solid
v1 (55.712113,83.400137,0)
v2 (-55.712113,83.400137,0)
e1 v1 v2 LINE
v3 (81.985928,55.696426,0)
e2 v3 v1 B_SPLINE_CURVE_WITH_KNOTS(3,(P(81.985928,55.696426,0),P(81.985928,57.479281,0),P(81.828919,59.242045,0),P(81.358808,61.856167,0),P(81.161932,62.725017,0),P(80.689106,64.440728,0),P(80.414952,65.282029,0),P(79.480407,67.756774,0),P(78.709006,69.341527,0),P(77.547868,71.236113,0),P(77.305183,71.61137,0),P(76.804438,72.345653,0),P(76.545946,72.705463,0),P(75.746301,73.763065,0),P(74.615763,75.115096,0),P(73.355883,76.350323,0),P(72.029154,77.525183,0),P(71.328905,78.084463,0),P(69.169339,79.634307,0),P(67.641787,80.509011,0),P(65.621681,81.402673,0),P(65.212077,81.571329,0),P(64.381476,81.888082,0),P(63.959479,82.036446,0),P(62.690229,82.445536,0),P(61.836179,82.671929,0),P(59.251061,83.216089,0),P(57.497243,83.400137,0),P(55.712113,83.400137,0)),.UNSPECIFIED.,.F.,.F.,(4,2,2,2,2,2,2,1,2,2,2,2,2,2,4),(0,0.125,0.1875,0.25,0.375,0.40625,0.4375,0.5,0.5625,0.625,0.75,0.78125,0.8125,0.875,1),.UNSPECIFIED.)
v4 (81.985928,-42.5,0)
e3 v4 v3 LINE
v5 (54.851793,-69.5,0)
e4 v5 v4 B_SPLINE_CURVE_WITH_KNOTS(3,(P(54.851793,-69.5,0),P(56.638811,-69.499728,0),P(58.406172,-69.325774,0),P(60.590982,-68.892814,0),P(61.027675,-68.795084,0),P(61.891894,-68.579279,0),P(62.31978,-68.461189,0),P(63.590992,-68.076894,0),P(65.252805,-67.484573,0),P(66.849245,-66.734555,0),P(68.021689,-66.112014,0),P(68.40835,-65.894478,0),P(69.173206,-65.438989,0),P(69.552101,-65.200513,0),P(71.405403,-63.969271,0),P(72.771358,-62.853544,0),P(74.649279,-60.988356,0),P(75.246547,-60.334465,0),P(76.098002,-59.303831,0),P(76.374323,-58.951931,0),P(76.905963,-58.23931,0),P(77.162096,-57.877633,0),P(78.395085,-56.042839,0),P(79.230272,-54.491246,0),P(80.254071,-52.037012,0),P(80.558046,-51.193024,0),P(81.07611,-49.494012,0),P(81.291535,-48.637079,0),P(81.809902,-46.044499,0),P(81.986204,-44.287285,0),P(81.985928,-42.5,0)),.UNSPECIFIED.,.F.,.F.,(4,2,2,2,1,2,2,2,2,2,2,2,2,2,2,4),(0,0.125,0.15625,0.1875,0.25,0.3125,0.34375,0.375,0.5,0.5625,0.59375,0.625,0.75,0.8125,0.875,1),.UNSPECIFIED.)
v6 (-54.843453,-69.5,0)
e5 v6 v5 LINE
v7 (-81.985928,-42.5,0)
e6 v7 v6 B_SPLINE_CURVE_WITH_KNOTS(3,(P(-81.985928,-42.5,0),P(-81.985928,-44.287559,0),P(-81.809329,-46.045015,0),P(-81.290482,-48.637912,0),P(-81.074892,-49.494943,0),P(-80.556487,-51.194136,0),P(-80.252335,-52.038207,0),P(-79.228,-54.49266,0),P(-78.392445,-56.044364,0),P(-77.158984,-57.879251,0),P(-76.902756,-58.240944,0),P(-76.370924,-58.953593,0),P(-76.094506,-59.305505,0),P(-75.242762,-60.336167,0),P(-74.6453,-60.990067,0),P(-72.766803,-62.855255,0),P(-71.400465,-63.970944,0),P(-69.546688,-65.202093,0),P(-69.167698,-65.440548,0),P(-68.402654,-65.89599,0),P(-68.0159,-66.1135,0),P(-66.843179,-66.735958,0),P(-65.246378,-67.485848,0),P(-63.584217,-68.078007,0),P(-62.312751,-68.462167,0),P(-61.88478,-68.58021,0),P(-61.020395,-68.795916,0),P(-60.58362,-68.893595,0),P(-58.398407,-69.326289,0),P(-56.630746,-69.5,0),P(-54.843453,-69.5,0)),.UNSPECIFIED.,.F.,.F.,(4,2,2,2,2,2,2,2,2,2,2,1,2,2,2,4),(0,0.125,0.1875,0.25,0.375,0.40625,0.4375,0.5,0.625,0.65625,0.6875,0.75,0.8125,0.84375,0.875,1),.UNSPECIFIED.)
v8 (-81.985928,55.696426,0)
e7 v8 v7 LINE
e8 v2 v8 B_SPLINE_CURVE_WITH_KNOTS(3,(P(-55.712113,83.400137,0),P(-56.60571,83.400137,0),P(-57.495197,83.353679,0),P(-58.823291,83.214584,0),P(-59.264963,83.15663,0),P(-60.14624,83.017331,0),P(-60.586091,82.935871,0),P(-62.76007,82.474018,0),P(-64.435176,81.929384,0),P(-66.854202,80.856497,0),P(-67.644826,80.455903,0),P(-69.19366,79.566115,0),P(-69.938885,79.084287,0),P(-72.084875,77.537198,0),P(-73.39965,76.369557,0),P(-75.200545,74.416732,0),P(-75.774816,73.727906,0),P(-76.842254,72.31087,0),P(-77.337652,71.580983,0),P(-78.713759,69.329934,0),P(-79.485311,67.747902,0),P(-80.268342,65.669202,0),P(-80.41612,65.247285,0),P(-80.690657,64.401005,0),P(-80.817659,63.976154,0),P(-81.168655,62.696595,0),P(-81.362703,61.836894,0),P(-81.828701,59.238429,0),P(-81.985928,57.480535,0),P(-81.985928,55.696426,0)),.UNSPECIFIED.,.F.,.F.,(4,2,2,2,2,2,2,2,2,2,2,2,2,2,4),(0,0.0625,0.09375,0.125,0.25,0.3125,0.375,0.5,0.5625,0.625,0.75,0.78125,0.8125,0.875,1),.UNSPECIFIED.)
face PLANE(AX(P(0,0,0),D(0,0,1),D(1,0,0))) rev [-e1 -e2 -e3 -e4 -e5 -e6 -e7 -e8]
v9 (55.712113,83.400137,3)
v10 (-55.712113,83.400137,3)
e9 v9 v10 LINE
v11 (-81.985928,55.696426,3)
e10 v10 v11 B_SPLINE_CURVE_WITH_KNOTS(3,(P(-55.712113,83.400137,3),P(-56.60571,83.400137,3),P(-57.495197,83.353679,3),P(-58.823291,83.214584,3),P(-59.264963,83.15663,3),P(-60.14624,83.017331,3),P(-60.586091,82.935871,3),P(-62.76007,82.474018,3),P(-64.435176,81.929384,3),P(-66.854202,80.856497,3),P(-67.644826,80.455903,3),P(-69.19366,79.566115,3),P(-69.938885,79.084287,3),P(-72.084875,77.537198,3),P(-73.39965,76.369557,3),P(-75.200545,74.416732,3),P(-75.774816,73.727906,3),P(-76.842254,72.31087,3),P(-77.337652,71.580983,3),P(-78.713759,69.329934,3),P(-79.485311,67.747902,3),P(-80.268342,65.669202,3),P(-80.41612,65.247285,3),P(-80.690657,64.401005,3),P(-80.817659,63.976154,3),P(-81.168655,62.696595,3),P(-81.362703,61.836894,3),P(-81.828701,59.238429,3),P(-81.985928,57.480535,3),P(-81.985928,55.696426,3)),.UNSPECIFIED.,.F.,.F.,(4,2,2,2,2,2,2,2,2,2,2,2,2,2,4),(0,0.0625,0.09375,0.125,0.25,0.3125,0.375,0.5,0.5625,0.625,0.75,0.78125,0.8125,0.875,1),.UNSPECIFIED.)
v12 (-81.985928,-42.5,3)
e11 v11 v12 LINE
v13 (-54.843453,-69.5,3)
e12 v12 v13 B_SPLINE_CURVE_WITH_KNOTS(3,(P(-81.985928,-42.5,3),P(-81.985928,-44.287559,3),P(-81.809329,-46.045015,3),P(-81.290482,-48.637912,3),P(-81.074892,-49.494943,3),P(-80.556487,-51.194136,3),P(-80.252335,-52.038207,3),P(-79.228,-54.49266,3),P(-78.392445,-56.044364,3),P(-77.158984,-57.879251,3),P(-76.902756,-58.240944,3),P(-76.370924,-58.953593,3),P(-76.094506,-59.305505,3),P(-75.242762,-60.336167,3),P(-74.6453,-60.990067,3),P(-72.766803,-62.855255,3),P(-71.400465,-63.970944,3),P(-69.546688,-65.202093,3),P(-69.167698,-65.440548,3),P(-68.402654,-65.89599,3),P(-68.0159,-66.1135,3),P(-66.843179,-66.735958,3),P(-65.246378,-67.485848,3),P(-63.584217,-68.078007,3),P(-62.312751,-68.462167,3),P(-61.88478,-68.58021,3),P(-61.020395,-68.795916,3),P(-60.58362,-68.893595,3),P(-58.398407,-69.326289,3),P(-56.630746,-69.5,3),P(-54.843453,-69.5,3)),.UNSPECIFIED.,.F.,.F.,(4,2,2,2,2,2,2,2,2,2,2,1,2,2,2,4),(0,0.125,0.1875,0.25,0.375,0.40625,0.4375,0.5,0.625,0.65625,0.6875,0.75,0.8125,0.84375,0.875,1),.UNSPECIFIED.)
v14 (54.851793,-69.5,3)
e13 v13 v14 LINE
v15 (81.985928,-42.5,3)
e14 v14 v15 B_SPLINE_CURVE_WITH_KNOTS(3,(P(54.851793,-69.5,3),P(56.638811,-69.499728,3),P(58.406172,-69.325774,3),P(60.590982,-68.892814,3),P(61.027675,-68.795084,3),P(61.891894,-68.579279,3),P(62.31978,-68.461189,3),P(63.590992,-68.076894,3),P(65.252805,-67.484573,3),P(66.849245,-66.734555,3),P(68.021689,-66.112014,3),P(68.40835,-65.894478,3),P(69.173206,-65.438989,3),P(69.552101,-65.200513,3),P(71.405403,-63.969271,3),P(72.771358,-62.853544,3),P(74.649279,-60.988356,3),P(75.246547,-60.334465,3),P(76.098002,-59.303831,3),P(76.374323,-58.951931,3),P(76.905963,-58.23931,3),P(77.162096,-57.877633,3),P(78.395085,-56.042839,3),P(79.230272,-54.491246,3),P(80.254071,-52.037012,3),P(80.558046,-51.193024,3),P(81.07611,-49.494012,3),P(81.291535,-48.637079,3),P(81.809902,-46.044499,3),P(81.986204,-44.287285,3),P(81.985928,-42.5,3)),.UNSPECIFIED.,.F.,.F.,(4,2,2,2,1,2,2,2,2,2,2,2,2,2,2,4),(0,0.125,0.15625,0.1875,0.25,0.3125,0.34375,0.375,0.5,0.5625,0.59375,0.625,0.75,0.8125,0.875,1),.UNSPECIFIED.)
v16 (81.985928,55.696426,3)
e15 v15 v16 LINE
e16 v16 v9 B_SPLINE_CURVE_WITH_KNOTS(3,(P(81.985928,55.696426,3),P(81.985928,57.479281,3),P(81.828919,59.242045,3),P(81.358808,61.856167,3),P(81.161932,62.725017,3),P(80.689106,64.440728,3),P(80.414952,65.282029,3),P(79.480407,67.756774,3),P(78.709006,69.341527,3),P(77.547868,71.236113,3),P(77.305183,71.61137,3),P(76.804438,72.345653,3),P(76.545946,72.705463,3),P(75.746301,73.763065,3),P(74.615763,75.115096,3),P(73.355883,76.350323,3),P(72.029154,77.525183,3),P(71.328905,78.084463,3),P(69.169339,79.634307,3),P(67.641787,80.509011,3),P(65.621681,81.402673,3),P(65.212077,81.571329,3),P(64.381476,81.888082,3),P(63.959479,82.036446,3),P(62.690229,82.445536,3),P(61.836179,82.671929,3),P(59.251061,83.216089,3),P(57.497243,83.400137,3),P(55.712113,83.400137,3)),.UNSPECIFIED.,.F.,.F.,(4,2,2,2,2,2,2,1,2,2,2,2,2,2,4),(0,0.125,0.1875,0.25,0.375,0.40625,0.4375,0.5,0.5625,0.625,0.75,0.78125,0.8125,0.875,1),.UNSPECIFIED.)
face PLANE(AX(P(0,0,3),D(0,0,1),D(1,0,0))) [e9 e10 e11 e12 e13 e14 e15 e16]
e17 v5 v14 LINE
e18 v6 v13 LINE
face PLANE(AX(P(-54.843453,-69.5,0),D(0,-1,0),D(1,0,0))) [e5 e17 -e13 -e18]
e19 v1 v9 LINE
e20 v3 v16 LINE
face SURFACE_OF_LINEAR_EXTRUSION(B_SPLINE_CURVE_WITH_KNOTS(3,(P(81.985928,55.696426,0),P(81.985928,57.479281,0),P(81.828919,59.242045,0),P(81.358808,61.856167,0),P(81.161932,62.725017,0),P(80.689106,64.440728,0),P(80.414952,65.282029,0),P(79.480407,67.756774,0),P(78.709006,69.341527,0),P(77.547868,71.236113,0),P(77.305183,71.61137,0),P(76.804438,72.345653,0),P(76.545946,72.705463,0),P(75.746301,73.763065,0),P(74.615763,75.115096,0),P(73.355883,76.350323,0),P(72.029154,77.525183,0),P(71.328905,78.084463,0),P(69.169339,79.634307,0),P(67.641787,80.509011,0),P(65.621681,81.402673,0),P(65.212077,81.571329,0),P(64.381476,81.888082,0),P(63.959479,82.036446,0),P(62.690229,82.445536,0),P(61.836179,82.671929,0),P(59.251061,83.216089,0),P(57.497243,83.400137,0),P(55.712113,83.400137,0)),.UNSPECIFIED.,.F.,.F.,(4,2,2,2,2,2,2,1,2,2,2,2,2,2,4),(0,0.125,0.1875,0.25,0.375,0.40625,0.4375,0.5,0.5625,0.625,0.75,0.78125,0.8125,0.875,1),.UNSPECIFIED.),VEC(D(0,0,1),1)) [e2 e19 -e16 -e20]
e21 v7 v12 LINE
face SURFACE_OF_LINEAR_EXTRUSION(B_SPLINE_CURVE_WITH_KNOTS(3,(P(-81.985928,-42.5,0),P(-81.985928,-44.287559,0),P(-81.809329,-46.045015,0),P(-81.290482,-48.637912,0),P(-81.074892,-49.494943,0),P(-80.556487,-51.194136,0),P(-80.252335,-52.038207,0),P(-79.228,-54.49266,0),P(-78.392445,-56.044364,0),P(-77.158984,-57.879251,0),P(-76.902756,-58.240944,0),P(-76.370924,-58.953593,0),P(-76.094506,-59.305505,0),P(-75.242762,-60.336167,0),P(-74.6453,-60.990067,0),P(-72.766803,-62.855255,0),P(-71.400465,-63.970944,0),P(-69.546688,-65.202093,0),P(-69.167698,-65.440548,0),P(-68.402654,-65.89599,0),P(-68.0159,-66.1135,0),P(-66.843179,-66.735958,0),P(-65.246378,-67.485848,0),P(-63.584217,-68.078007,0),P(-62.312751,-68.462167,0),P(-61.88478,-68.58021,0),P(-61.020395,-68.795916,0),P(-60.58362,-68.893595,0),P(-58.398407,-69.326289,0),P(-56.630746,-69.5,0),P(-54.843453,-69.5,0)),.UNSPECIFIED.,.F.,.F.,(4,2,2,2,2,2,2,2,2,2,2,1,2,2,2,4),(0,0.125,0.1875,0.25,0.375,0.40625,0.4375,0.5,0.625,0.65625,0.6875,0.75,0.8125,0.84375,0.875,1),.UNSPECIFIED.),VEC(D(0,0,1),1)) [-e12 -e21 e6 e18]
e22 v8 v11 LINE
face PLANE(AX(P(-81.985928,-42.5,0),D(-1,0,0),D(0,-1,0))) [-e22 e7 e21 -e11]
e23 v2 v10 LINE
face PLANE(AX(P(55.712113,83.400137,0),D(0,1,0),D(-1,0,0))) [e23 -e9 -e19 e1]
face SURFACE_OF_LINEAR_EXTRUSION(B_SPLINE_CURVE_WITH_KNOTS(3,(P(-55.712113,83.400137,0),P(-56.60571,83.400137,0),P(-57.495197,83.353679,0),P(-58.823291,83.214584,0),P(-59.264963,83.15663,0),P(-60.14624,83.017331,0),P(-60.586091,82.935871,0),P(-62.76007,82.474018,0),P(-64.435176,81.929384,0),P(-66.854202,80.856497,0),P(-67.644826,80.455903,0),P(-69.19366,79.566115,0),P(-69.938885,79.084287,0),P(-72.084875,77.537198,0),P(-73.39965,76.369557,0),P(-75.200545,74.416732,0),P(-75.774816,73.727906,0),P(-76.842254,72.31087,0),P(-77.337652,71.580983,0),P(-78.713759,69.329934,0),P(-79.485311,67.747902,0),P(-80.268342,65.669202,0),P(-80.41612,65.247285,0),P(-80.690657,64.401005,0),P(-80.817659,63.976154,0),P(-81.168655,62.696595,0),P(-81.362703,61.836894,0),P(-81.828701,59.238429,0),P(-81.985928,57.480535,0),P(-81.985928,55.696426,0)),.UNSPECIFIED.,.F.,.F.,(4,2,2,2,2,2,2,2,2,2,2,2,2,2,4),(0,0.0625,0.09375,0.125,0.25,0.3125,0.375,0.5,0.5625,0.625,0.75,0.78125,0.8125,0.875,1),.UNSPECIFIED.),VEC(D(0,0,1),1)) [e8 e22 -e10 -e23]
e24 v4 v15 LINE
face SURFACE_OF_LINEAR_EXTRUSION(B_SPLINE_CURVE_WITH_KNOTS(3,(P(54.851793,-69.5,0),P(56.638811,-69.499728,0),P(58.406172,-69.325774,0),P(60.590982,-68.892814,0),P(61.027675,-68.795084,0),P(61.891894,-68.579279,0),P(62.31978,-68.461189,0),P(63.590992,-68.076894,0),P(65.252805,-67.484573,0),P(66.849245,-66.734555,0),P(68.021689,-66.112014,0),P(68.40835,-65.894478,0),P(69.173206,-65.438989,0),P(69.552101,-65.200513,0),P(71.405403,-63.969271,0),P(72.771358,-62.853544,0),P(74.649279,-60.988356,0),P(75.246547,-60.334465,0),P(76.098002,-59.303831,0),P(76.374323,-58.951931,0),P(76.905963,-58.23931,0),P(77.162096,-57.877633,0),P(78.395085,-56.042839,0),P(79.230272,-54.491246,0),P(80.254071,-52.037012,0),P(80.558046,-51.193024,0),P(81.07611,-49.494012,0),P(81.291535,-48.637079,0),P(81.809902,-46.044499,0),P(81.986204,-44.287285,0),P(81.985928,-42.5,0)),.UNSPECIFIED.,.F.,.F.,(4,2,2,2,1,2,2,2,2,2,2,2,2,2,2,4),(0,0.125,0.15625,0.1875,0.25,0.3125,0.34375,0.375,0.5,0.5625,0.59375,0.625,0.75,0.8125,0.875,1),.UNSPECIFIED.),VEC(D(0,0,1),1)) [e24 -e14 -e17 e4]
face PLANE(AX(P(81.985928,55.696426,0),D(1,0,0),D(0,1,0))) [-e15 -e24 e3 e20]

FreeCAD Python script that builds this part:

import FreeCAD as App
import Part
import Sketcher
from FreeCAD import Vector
Q = App.Units.Quantity


def add_polygon(sketch, points):
    """Adds a closed chain of lines whose ends are joined by coincident constraints."""
    first, n = sketch.GeometryCount, len(points)
    for a, b in zip(points, points[1:] + points[:1]):
        sketch.addGeometry(Part.LineSegment(App.Vector(*a, 0), App.Vector(*b, 0)), False)
    for i in range(n):
        sketch.addConstraint(Sketcher.Constraint("Coincident", first + i, 2, first + (i + 1) % n, 1))

doc = App.newDocument("Part")
body = doc.addObject("PartDesign::Body", "Body")

sketch1 = doc.addObject("Sketcher::SketchObject", "Sketch")
body.addObject(sketch1)
sketch1.AttachmentSupport = (doc.XY_Plane, [""])
sketch1.MapMode = "FlatFace"
add_polygon(sketch1, [(-105, 125), (-105, -72), (103, -72), (103, 125)])
sketch1.addConstraint([
    Sketcher.Constraint("Vertical", 0),
    Sketcher.Constraint("Horizontal", 1),
    Sketcher.Constraint("Vertical", 2),
    Sketcher.Constraint("Horizontal", 3),
    Sketcher.Constraint("DistanceY", 0, 2, -1, 1, Q("72.5 mm")),
    Sketcher.Constraint("DistanceY", 0, 2, 0, 1, Q("197.406671 mm")),
    Sketcher.Constraint("DistanceX", 1, 1, 1, 2, Q("208.774674 mm")),
    Sketcher.Constraint("DistanceX", -1, 1, 1, 2, Q("103.456309 mm")),
])
pad1 = doc.addObject("PartDesign::Pad", "Pad")
body.addObject(pad1)
pad1.Profile = sketch1
pad1.Length = 3

sketch2 = doc.addObject("Sketcher::SketchObject", "Sketch001")
body.addObject(sketch2)
sketch2.AttachmentSupport = (doc.XY_Plane, [""])
sketch2.MapMode = "FlatFace"
sketch2.AttachmentOffset = App.Placement(Vector(0, 0, 3), App.Rotation())
add_polygon(sketch2, [(-135.052, 154.641), (-135.052, -102.234), (133.19, -102.234), (133.19, 154.641)])
sketch2.addGeometry(Part.BSplineCurve([Vector(-81.985928, -42.5, 0), Vector(-81.985928, -44.287559, 0), Vector(-81.809329, -46.045015, 0), Vector(-81.290482, -48.637912, 0), Vector(-81.074892, -49.494943, 0), Vector(-80.556487, -51.194136, 0), Vector(-80.252335, -52.038207, 0), Vector(-79.228, -54.49266, 0), Vector(-78.392445, -56.044364, 0), Vector(-77.158984, -57.879251, 0), Vector(-76.902756, -58.240944, 0), Vector(-76.370924, -58.953593, 0), Vector(-76.094506, -59.305505, 0), Vector(-75.242762, -60.336167, 0), Vector(-74.6453, -60.990067, 0), Vector(-72.766803, -62.855255, 0), Vector(-71.400465, -63.970944, 0), Vector(-69.546688, -65.202093, 0), Vector(-69.167698, -65.440548, 0), Vector(-68.402654, -65.89599, 0), Vector(-68.0159, -66.1135, 0), Vector(-66.843179, -66.735958, 0), Vector(-65.246378, -67.485848, 0), Vector(-63.584217, -68.078007, 0), Vector(-62.312751, -68.462167, 0), Vector(-61.88478, -68.58021, 0), Vector(-61.020395, -68.795916, 0), Vector(-60.58362, -68.893595, 0), Vector(-58.398407, -69.326289, 0), Vector(-56.630746, -69.5, 0), Vector(-54.843453, -69.5, 0)], [4, 2, 2, 2, 2, 2, 2, 2, 2, 2, 2, 1, 2, 2, 2, 4], [0, 0.125, 0.1875, 0.25, 0.375, 0.40625, 0.4375, 0.5, 0.625, 0.65625, 0.6875, 0.75, 0.8125, 0.84375, 0.875, 1], False, 3, [1, 1, 1, 1, 1, 1, 1, 1, 1, 1, 1, 1, 1, 1, 1, 1, 1, 1, 1, 1, 1, 1, 1, 1, 1, 1, 1, 1, 1, 1, 1], False), False)
sketch2.addGeometry(Part.LineSegment(Vector(-81.985928, -42.5, 0), Vector(-81.985928, 55.696426, 0)), False)
sketch2.addGeometry(Part.BSplineCurve([Vector(-81.985928, 55.696426, 0), Vector(-81.985928, 57.480535, 0), Vector(-81.828701, 59.238429, 0), Vector(-81.362703, 61.836894, 0), Vector(-81.168655, 62.696595, 0), Vector(-80.817659, 63.976154, 0), Vector(-80.690657, 64.401005, 0), Vector(-80.41612, 65.247285, 0), Vector(-80.268342, 65.669202, 0), Vector(-79.485311, 67.747902, 0), Vector(-78.713759, 69.329934, 0), Vector(-77.337652, 71.580983, 0), Vector(-76.842254, 72.31087, 0), Vector(-75.774816, 73.727906, 0), Vector(-75.200545, 74.416732, 0), Vector(-73.39965, 76.369557, 0), Vector(-72.084875, 77.537198, 0), Vector(-69.938885, 79.084287, 0), Vector(-69.19366, 79.566115, 0), Vector(-67.644826, 80.455903, 0), Vector(-66.854202, 80.856497, 0), Vector(-64.435176, 81.929384, 0), Vector(-62.76007, 82.474018, 0), Vector(-60.586091, 82.935871, 0), Vector(-60.14624, 83.017331, 0), Vector(-59.264963, 83.15663, 0), Vector(-58.823291, 83.214584, 0), Vector(-57.495197, 83.353679, 0), Vector(-56.60571, 83.400137, 0), Vector(-55.712113, 83.400137, 0)], [4, 2, 2, 2, 2, 2, 2, 2, 2, 2, 2, 2, 2, 2, 4], [0, 0.125, 0.1875, 0.21875, 0.25, 0.375, 0.4375, 0.5, 0.625, 0.6875, 0.75, 0.875, 0.90625, 0.9375, 1], False, 3, [1, 1, 1, 1, 1, 1, 1, 1, 1, 1, 1, 1, 1, 1, 1, 1, 1, 1, 1, 1, 1, 1, 1, 1, 1, 1, 1, 1, 1, 1], False), False)
sketch2.addGeometry(Part.LineSegment(Vector(-55.712113, 83.400137, 0), Vector(55.712113, 83.400137, 0)), False)
sketch2.addGeometry(Part.BSplineCurve([Vector(55.712113, 83.400137, 0), Vector(57.497243, 83.400137, 0), Vector(59.251061, 83.216089, 0), Vector(61.836179, 82.671929, 0), Vector(62.690229, 82.445536, 0), Vector(63.959479, 82.036446, 0), Vector(64.381476, 81.888082, 0), Vector(65.212077, 81.571329, 0), Vector(65.621681, 81.402673, 0), Vector(67.641787, 80.509011, 0), Vector(69.169339, 79.634307, 0), Vector(71.328905, 78.084463, 0), Vector(72.029154, 77.525183, 0), Vector(73.355883, 76.350323, 0), Vector(74.615763, 75.115096, 0), Vector(75.746301, 73.763065, 0), Vector(76.545946, 72.705463, 0), Vector(76.804438, 72.345653, 0), Vector(77.305183, 71.61137, 0), Vector(77.547868, 71.236113, 0), Vector(78.709006, 69.341527, 0), Vector(79.480407, 67.756774, 0), Vector(80.414952, 65.282029, 0), Vector(80.689106, 64.440728, 0), Vector(81.161932, 62.725017, 0), Vector(81.358808, 61.856167, 0), Vector(81.828919, 59.242045, 0), Vector(81.985928, 57.479281, 0), Vector(81.985928, 55.696426, 0)], [4, 2, 2, 2, 2, 2, 2, 1, 2, 2, 2, 2, 2, 2, 4], [0, 0.125, 0.1875, 0.21875, 0.25, 0.375, 0.4375, 0.5, 0.5625, 0.59375, 0.625, 0.75, 0.8125, 0.875, 1], False, 3, [1, 1, 1, 1, 1, 1, 1, 1, 1, 1, 1, 1, 1, 1, 1, 1, 1, 1, 1, 1, 1, 1, 1, 1, 1, 1, 1, 1, 1], False), False)
sketch2.addGeometry(Part.LineSegment(Vector(81.985928, 55.696426, 0), Vector(81.985928, -42.5, 0)), False)
sketch2.addGeometry(Part.BSplineCurve([Vector(81.985928, -42.5, 0), Vector(81.986204, -44.287285, 0), Vector(81.809902, -46.044499, 0), Vector(81.291535, -48.637079, 0), Vector(81.07611, -49.494012, 0), Vector(80.558046, -51.193024, 0), Vector(80.254071, -52.037012, 0), Vector(79.230272, -54.491246, 0), Vector(78.395085, -56.042839, 0), Vector(77.162096, -57.877633, 0), Vector(76.905963, -58.23931, 0), Vector(76.374323, -58.951931, 0), Vector(76.098002, -59.303831, 0), Vector(75.246547, -60.334465, 0), Vector(74.649279, -60.988356, 0), Vector(72.771358, -62.853544, 0), Vector(71.405403, -63.969271, 0), Vector(69.552101, -65.200513, 0), Vector(69.173206, -65.438989, 0), Vector(68.40835, -65.894478, 0), Vector(68.021689, -66.112014, 0), Vector(66.849245, -66.734555, 0), Vector(65.252805, -67.484573, 0), Vector(63.590992, -68.076894, 0), Vector(62.31978, -68.461189, 0), Vector(61.891894, -68.579279, 0), Vector(61.027675, -68.795084, 0), Vector(60.590982, -68.892814, 0), Vector(58.406172, -69.325774, 0), Vector(56.638811, -69.499728, 0), Vector(54.851793, -69.5, 0)], [4, 2, 2, 2, 2, 2, 2, 2, 2, 2, 2, 1, 2, 2, 2, 4], [0, 0.125, 0.1875, 0.25, 0.375, 0.40625, 0.4375, 0.5, 0.625, 0.65625, 0.6875, 0.75, 0.8125, 0.84375, 0.875, 1], False, 3, [1, 1, 1, 1, 1, 1, 1, 1, 1, 1, 1, 1, 1, 1, 1, 1, 1, 1, 1, 1, 1, 1, 1, 1, 1, 1, 1, 1, 1, 1, 1], False), False)
sketch2.addGeometry(Part.LineSegment(Vector(54.851793, -69.5, 0), Vector(-54.843453, -69.5, 0)), False)
sketch2.addConstraint([
    Sketcher.Constraint("Block", 4),
    Sketcher.Constraint("Block", 6),
    Sketcher.Constraint("Block", 8),
    Sketcher.Constraint("Block", 10),
    Sketcher.Constraint("Coincident", 4, 1, 5, 1),
    Sketcher.Constraint("Coincident", 5, 2, 6, 1),
    Sketcher.Constraint("Coincident", 6, 2, 7, 1),
    Sketcher.Constraint("Coincident", 7, 2, 8, 1),
    Sketcher.Constraint("Coincident", 8, 2, 9, 1),
    Sketcher.Constraint("Coincident", 9, 2, 10, 1),
    Sketcher.Constraint("Coincident", 10, 2, 11, 1),
    Sketcher.Constraint("Coincident", 11, 2, 4, 2),
    Sketcher.Constraint("Vertical", 0),
    Sketcher.Constraint("Horizontal", 1),
    Sketcher.Constraint("Vertical", 2),
    Sketcher.Constraint("Horizontal", 3),
    Sketcher.Constraint("DistanceX", 1, 1, 1, 2, Q("268.242 mm")),
    Sketcher.Constraint("DistanceY", 0, 2, 0, 1, Q("256.875 mm")),
    Sketcher.Constraint("DistanceX", -1, 1, 1, 2, Q("133.19 mm")),
    Sketcher.Constraint("DistanceY", 0, 2, -1, 1, Q("102.234 mm")),
])
pocket1 = doc.addObject("PartDesign::Pocket", "Pocket")
body.addObject(pocket1)
pocket1.Profile = sketch2
pocket1.Type = "ThroughAll"
pocket1.Midplane = True

doc.recompute()
